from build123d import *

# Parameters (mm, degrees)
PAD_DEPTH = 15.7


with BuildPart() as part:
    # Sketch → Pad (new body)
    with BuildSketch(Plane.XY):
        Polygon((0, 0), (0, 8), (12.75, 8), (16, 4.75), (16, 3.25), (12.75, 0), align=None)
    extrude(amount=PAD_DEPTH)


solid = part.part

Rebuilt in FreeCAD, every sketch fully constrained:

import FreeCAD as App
import Part
import Sketcher
Q = App.Units.Quantity

doc = App.newDocument("Part")
params = doc.addObject("Spreadsheet::Sheet", "Params")
for row, (alias, value) in enumerate([
    ("sketch1_height", "8 mm"),
    ("sketch1_height2", "1.5 mm"),
    ("pad1_length", "15.7 mm"),
], start=1):
    params.set(f"A{row}", alias)
    params.set(f"B{row}", "=" + value)
    params.setAlias(f"B{row}", alias)

body = doc.addObject("PartDesign::Body", "Body")

sketch1 = doc.addObject("Sketcher::SketchObject", "Sketch")
body.addObject(sketch1)
sketch1.AttachmentSupport = (doc.XY_Plane, [""])
sketch1.MapMode = "FlatFace"
sketch1.addGeometry(Part.LineSegment(App.Vector(0, 8, 0), App.Vector(0, 0, 0)), False)
sketch1.addGeometry(Part.LineSegment(App.Vector(0, 0, 0), App.Vector(12.8, 0, 0)), False)
sketch1.addGeometry(Part.LineSegment(App.Vector(12.8, 0, 0), App.Vector(16, 3.2, 0)), False)
sketch1.addGeometry(Part.LineSegment(App.Vector(16, 3.2, 0), App.Vector(16, 4.8, 0)), False)
sketch1.addGeometry(Part.LineSegment(App.Vector(16, 4.8, 0), App.Vector(12.8, 8, 0)), False)
sketch1.addGeometry(Part.LineSegment(App.Vector(12.8, 8, 0), App.Vector(0, 8, 0)), False)
sketch1.addConstraint(Sketcher.Constraint("Coincident", 0, 2, 1, 1))
sketch1.addConstraint(Sketcher.Constraint("Coincident", 1, 2, 2, 1))
sketch1.addConstraint(Sketcher.Constraint("Coincident", 2, 2, 3, 1))
sketch1.addConstraint(Sketcher.Constraint("Coincident", 3, 2, 4, 1))
sketch1.addConstraint(Sketcher.Constraint("Coincident", 4, 2, 5, 1))
sketch1.addConstraint(Sketcher.Constraint("Coincident", 5, 2, 0, 1))
sketch1.addConstraint(Sketcher.Constraint("Vertical", 0))
sketch1.addConstraint(Sketcher.Constraint("Horizontal", 1))
sketch1.addConstraint(Sketcher.Constraint("Vertical", 3))
sketch1.addConstraint(Sketcher.Constraint("Horizontal", 5))
sketch1.addConstraint(Sketcher.Constraint("Coincident", 0, 2, -1, 1))
sketch1.addConstraint(Sketcher.Constraint("Perpendicular", 2, 4))
sketch1.addConstraint(Sketcher.Constraint("Vertical", 1, 2, 4, 2))
sketch1.addConstraint(Sketcher.Constraint("Equal", 2, 4))
sketch1.addConstraint(Sketcher.Constraint("DistanceY", 0, 2, 0, 1, Q("8 mm")))
sketch1.addConstraint(Sketcher.Constraint("DistanceY", 3, 1, 3, 2, Q("1.5 mm")))
sketch1.addConstraint(Sketcher.Constraint("DistanceX", -1, 1, 2, 2, Q("16 mm")))
sketch1.setExpression("Constraints[14]", "Params.sketch1_height")
sketch1.setExpression("Constraints[15]", "Params.sketch1_height2")
pad1 = doc.addObject("PartDesign::Pad", "Pad")
body.addObject(pad1)
pad1.Profile = sketch1
pad1.setExpression("Length", "Params.pad1_length")

doc.recompute()
